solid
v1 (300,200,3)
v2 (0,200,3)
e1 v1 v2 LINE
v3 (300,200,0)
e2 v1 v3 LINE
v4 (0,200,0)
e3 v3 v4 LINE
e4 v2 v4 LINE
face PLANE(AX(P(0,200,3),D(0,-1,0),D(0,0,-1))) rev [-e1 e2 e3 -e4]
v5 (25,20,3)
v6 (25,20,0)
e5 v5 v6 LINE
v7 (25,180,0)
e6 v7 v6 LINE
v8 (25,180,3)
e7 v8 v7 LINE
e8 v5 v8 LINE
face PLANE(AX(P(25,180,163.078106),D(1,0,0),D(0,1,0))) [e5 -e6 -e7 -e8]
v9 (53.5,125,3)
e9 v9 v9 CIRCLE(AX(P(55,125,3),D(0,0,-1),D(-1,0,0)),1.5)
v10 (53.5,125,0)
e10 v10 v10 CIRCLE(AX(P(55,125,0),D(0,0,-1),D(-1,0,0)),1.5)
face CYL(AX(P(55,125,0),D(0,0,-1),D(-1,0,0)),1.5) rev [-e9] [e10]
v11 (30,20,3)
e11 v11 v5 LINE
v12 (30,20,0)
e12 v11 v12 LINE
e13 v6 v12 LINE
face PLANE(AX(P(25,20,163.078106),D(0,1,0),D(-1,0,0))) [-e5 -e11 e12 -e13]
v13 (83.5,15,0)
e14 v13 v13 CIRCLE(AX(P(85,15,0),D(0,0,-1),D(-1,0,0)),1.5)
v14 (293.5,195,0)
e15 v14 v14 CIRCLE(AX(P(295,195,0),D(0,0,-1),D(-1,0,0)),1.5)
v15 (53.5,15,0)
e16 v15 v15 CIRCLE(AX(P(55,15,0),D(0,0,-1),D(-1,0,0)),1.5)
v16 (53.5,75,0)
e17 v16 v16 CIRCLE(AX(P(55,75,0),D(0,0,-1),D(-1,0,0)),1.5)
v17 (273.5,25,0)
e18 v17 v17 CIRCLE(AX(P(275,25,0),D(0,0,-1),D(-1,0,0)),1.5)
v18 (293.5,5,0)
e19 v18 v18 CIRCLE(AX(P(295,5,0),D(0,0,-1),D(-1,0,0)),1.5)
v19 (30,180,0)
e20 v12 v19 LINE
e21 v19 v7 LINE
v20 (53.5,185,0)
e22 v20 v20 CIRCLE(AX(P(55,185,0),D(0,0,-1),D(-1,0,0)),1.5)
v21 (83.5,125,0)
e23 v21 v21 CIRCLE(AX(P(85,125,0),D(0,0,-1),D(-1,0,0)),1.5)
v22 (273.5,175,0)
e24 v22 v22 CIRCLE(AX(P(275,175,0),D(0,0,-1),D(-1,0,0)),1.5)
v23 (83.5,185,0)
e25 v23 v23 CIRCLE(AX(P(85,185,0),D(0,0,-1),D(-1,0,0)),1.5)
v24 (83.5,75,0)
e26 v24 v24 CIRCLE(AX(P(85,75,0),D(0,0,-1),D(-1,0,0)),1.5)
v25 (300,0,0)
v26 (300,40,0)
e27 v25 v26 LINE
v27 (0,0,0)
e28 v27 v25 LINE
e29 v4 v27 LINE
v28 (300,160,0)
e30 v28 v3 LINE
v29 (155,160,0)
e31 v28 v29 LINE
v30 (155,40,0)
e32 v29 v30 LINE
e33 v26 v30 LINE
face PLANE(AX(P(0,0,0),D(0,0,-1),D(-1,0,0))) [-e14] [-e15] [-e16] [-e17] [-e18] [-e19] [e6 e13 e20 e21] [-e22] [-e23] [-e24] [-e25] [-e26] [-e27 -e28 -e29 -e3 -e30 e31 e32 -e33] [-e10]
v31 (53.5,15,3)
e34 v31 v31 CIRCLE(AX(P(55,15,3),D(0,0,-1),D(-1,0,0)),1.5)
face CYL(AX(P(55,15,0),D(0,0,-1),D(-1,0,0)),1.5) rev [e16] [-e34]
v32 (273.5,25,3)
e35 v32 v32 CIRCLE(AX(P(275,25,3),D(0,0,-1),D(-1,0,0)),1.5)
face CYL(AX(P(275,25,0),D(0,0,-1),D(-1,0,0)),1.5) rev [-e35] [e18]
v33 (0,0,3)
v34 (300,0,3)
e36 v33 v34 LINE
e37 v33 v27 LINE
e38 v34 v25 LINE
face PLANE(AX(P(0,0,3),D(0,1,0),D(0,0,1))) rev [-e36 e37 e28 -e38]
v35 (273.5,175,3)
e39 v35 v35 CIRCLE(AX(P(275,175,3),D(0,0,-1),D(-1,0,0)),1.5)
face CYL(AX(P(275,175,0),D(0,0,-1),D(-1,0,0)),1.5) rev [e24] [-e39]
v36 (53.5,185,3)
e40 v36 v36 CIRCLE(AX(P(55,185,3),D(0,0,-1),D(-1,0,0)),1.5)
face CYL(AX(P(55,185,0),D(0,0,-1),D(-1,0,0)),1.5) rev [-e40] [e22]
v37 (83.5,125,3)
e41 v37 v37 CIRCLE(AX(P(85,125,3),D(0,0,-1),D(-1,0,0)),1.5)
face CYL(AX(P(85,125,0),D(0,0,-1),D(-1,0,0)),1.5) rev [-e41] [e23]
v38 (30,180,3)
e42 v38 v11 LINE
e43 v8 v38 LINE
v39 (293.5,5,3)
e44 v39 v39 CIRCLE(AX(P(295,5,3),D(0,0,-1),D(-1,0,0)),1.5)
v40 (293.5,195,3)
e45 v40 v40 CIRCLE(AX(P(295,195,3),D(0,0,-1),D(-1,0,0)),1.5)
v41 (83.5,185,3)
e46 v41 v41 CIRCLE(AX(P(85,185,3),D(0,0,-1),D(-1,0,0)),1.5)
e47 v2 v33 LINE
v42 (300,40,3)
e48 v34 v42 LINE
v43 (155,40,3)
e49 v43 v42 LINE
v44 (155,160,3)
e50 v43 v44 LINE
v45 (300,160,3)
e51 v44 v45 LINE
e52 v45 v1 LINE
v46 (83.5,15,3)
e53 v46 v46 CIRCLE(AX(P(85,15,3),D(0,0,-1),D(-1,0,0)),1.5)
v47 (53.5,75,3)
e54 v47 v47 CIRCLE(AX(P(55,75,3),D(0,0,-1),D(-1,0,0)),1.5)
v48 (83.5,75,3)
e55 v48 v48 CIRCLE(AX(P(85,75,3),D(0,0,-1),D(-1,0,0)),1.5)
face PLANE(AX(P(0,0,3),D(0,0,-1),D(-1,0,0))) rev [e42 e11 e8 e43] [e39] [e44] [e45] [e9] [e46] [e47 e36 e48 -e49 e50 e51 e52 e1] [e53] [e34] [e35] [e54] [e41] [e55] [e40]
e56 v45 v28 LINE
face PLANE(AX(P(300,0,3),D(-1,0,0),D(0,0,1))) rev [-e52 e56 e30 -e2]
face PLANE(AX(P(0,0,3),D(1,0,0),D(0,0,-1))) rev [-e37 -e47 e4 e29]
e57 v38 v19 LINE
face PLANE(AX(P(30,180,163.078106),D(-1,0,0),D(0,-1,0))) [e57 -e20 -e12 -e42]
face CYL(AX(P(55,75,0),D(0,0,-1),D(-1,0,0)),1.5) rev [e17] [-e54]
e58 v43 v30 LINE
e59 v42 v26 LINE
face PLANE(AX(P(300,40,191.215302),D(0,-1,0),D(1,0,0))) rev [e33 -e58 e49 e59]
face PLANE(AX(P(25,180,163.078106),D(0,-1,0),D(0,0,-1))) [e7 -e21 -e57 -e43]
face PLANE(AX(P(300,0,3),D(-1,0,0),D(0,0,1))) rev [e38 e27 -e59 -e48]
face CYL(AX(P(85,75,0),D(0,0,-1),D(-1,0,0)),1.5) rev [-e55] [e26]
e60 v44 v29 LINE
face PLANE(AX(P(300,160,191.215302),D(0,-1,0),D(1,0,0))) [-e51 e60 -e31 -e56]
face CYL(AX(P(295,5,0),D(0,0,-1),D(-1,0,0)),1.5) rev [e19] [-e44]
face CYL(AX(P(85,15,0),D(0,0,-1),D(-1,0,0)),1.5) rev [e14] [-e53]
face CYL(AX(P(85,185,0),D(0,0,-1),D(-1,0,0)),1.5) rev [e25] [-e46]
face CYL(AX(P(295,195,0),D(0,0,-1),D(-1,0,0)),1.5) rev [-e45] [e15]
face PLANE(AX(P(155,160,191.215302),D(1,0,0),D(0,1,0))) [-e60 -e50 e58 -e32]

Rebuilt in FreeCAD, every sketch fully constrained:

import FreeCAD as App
import Part
import Sketcher
from FreeCAD import Vector
Q = App.Units.Quantity


def add_polygon(sketch, points):
    """Adds a closed chain of lines whose ends are joined by coincident constraints."""
    first, n = sketch.GeometryCount, len(points)
    for a, b in zip(points, points[1:] + points[:1]):
        sketch.addGeometry(Part.LineSegment(App.Vector(*a, 0), App.Vector(*b, 0)), False)
    for i in range(n):
        sketch.addConstraint(Sketcher.Constraint("Coincident", first + i, 2, first + (i + 1) % n, 1))

doc = App.newDocument("Part")
body = doc.addObject("PartDesign::Body", "Body")

# Sketch on XY plane
sketch1 = doc.addObject("Sketcher::SketchObject", "Sketch")
body.addObject(sketch1)
sketch1.AttachmentSupport = (doc.XY_Plane, [""])
sketch1.MapMode = "FlatFace"
add_polygon(sketch1, [(0, 200), (0, 0), (300, 0), (300, 200)])  # lines 0-3
sketch1.addConstraint([
    Sketcher.Constraint("Vertical", 0),
    Sketcher.Constraint("Horizontal", 1),
    Sketcher.Constraint("Vertical", 2),
    Sketcher.Constraint("Horizontal", 3),
    Sketcher.Constraint("Coincident", 0, 2, -1, 1),
    Sketcher.Constraint("DistanceX", 1, 1, 1, 2, Q("300 mm")),
    Sketcher.Constraint("DistanceY", 0, 2, 0, 1, Q("200 mm")),
])
pad1 = doc.addObject("PartDesign::Pad", "Pad")
body.addObject(pad1)
pad1.Profile = sketch1
pad1.Length = 3

# Sketch on XY plane
sketch2 = doc.addObject("Sketcher::SketchObject", "Sketch001")
body.addObject(sketch2)
sketch2.AttachmentSupport = (doc.XY_Plane, [""])
sketch2.MapMode = "FlatFace"
add_polygon(sketch2, [(155, 160), (155, 40), (300, 40), (300, 160)])  # lines 0-3
sketch2.addConstraint([
    Sketcher.Constraint("Vertical", 0),
    Sketcher.Constraint("Horizontal", 1),
    Sketcher.Constraint("Vertical", 2),
    Sketcher.Constraint("Horizontal", 3),
    Sketcher.Constraint("DistanceX", 1, 1, 1, 2, Q("145 mm")),
    Sketcher.Constraint("DistanceY", 0, 2, 0, 1, Q("120 mm")),
    Sketcher.Constraint("DistanceX", -1, 1, 0, 2, Q("155 mm")),
    Sketcher.Constraint("DistanceY", -1, 1, 0, 2, Q("40 mm")),
])
pocket1 = doc.addObject("PartDesign::Pocket", "Pocket")
body.addObject(pocket1)
pocket1.Profile = sketch2
pocket1.Length = 3
pocket1.Reversed = True

# Sketch on XY plane
sketch3 = doc.addObject("Sketcher::SketchObject", "Sketch002")
body.addObject(sketch3)
sketch3.AttachmentSupport = (doc.XY_Plane, [""])
sketch3.MapMode = "FlatFace"
add_polygon(sketch3, [(25, 180), (25, 20), (30, 20), (30, 180)])  # lines 0-3
sketch3.addConstraint([
    Sketcher.Constraint("Vertical", 0),
    Sketcher.Constraint("Horizontal", 1),
    Sketcher.Constraint("Vertical", 2),
    Sketcher.Constraint("Horizontal", 3),
    Sketcher.Constraint("DistanceX", 1, 1, 1, 2, Q("5 mm")),
    Sketcher.Constraint("DistanceY", 0, 2, 0, 1, Q("160 mm")),
    Sketcher.Constraint("DistanceX", -1, 1, 0, 2, Q("25 mm")),
    Sketcher.Constraint("DistanceY", -1, 1, 0, 2, Q("20 mm")),
])
pocket2 = doc.addObject("PartDesign::Pocket", "Pocket001")
body.addObject(pocket2)
pocket2.Profile = sketch3
pocket2.Length = 3
pocket2.Reversed = True

# Sketch on XY plane
sketch4 = doc.addObject("Sketcher::SketchObject", "Sketch003")
body.addObject(sketch4)
sketch4.AttachmentSupport = (doc.XY_Plane, [""])
sketch4.MapMode = "FlatFace"
sketch4.addGeometry([
    Part.Circle(Vector(85, 75, 0), Vector(0, 0, 1), 1.5),  # 0
    Part.Circle(Vector(55, 75, 0), Vector(0, 0, 1), 1.5),  # 1
    Part.Circle(Vector(55, 15, 0), Vector(0, 0, 1), 1.5),  # 2
    Part.Circle(Vector(85, 15, 0), Vector(0, 0, 1), 1.5),  # 3
    Part.Circle(Vector(295, 5, 0), Vector(0, 0, 1), 1.5),  # 4
    Part.Circle(Vector(275, 25, 0), Vector(0, 0, 1), 1.5),  # 5
    Part.Circle(Vector(85, 185, 0), Vector(0, 0, 1), 1.5),  # 6
    Part.Circle(Vector(55, 185, 0), Vector(0, 0, 1), 1.5),  # 7
    Part.Circle(Vector(55, 125, 0), Vector(0, 0, 1), 1.5),  # 8
    Part.Circle(Vector(85, 125, 0), Vector(0, 0, 1), 1.5),  # 9
    Part.Circle(Vector(275, 175, 0), Vector(0, 0, 1), 1.5),  # 10
    Part.Circle(Vector(295, 195, 0), Vector(0, 0, 1), 1.5),  # 11
], False)
sketch4.addConstraint([
    Sketcher.Constraint("Equal", 0, 1),
    Sketcher.Constraint("Equal", 1, 2),
    Sketcher.Constraint("Equal", 2, 3),
    Sketcher.Constraint("Equal", 3, 4),
    Sketcher.Constraint("Equal", 4, 5),
    Sketcher.Constraint("Equal", 5, 6),
    Sketcher.Constraint("Equal", 6, 7),
    Sketcher.Constraint("Equal", 7, 8),
    Sketcher.Constraint("Equal", 8, 9),
    Sketcher.Constraint("Equal", 9, 10),
    Sketcher.Constraint("Equal", 10, 11),
    Sketcher.Constraint("Horizontal", 0, 3, 1, 3),
    Sketcher.Constraint("Horizontal", 2, 3, 3, 3),
    Sketcher.Constraint("Horizontal", 6, 3, 7, 3),
    Sketcher.Constraint("Horizontal", 8, 3, 9, 3),
    Sketcher.Constraint("Vertical", 1, 3, 2, 3),
    Sketcher.Constraint("Vertical", 0, 3, 3, 3),
    Sketcher.Constraint("Vertical", 3, 3, 6, 3),
    Sketcher.Constraint("Vertical", 2, 3, 7, 3),
    Sketcher.Constraint("Vertical", 7, 3, 8, 3),
    Sketcher.Constraint("Vertical", 6, 3, 9, 3),
    Sketcher.Constraint("Vertical", 5, 3, 10, 3),
    Sketcher.Constraint("Vertical", 4, 3, 11, 3),
    Sketcher.Constraint("Diameter", 0, Q("3 mm")),
    Sketcher.Constraint("DistanceX", -1, 1, 0, 3, Q("85 mm")),
    Sketcher.Constraint("DistanceY", -1, 1, 0, 3, Q("75 mm")),
    Sketcher.Constraint("DistanceX", -1, 1, 1, 3, Q("55 mm")),
    Sketcher.Constraint("DistanceY", -1, 1, 2, 3, Q("15 mm")),
    Sketcher.Constraint("DistanceX", -1, 1, 4, 3, Q("295 mm")),
    Sketcher.Constraint("DistanceY", -1, 1, 4, 3, Q("5 mm")),
    Sketcher.Constraint("DistanceX", -1, 1, 5, 3, Q("275 mm")),
    Sketcher.Constraint("DistanceY", -1, 1, 5, 3, Q("25 mm")),
    Sketcher.Constraint("DistanceY", -1, 1, 6, 3, Q("185 mm")),
    Sketcher.Constraint("DistanceY", -1, 1, 8, 3, Q("125 mm")),
    Sketcher.Constraint("DistanceY", -1, 1, 10, 3, Q("175 mm")),
    Sketcher.Constraint("DistanceY", -1, 1, 11, 3, Q("195 mm")),
])
doc.recompute()
hole = doc.addObject("PartDesign::Hole", "Hole")
body.addObject(hole)
hole.Profile = sketch4
hole.ThreadType = "None"
hole.Diameter = 3
hole.DepthType = "ThroughAll"
hole.Reversed = True

doc.recompute()
